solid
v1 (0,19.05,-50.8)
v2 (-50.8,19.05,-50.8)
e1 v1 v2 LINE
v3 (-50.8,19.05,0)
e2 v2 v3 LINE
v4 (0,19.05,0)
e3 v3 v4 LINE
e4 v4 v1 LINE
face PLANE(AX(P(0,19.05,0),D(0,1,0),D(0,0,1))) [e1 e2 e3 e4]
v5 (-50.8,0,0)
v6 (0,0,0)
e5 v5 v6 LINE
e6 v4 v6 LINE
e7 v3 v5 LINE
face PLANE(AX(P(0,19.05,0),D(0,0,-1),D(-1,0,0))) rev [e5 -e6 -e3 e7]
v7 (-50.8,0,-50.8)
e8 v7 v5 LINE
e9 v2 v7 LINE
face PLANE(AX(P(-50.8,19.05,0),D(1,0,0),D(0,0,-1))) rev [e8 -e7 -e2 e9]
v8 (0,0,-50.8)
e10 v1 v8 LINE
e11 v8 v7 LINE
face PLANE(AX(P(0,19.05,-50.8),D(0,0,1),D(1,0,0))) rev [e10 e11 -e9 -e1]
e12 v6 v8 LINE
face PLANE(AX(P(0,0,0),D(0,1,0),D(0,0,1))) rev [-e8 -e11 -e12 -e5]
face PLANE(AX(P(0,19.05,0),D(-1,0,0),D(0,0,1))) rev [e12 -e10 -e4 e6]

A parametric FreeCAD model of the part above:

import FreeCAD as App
import Part
import Sketcher

V = App.Vector
Q = App.Units.Quantity


def add_polygon(sketch, points):
    """Adds a closed chain of lines whose ends are joined by coincident constraints."""
    first, n = sketch.GeometryCount, len(points)
    for a, b in zip(points, points[1:] + points[:1]):
        sketch.addGeometry(Part.LineSegment(App.Vector(*a, 0), App.Vector(*b, 0)), False)
    for i in range(n):
        sketch.addConstraint(Sketcher.Constraint("Coincident", first + i, 2, first + (i + 1) % n, 1))

doc = App.newDocument("Part")
params = doc.addObject("Spreadsheet::Sheet", "Params")
for row, (alias, value) in enumerate([
    ("sketch1_width", "2 in"),
    ("pad1_length", "0.75 in"),
], start=1):
    params.set(f"A{row}", alias)
    params.set(f"B{row}", "=" + value)
    params.setAlias(f"B{row}", alias)

body = doc.addObject("PartDesign::Body", "Body")

# Sketch on XZ plane
sketch1 = body.newObject("Sketcher::SketchObject", "Sketch")
sketch1.AttachmentSupport = (doc.getObject("XZ_Plane"), [""])
sketch1.MapMode = "FlatFace"
add_polygon(sketch1, [(-51, -51), (-51, 0), (0, 0), (0, -51)])  # lines 0-3
sketch1.addConstraint(Sketcher.Constraint("Vertical", 0))
sketch1.addConstraint(Sketcher.Constraint("Horizontal", 1))
sketch1.addConstraint(Sketcher.Constraint("Vertical", 2))
sketch1.addConstraint(Sketcher.Constraint("Horizontal", 3))
sketch1.addConstraint(Sketcher.Constraint("Coincident", 1, 2, -1, 1))
sketch1.addConstraint(Sketcher.Constraint("Equal", 3, 0))
sketch1.addConstraint(Sketcher.Constraint("DistanceX", 1, 1, 1, 2, Q("2 in")))
sketch1.setExpression("Constraints[10]", "Params.sketch1_width")
pad1 = body.newObject("PartDesign::Pad", "Pad")
pad1.Profile = sketch1
pad1.setExpression("Length", "Params.pad1_length")
pad1.Reversed = True

doc.recompute()
